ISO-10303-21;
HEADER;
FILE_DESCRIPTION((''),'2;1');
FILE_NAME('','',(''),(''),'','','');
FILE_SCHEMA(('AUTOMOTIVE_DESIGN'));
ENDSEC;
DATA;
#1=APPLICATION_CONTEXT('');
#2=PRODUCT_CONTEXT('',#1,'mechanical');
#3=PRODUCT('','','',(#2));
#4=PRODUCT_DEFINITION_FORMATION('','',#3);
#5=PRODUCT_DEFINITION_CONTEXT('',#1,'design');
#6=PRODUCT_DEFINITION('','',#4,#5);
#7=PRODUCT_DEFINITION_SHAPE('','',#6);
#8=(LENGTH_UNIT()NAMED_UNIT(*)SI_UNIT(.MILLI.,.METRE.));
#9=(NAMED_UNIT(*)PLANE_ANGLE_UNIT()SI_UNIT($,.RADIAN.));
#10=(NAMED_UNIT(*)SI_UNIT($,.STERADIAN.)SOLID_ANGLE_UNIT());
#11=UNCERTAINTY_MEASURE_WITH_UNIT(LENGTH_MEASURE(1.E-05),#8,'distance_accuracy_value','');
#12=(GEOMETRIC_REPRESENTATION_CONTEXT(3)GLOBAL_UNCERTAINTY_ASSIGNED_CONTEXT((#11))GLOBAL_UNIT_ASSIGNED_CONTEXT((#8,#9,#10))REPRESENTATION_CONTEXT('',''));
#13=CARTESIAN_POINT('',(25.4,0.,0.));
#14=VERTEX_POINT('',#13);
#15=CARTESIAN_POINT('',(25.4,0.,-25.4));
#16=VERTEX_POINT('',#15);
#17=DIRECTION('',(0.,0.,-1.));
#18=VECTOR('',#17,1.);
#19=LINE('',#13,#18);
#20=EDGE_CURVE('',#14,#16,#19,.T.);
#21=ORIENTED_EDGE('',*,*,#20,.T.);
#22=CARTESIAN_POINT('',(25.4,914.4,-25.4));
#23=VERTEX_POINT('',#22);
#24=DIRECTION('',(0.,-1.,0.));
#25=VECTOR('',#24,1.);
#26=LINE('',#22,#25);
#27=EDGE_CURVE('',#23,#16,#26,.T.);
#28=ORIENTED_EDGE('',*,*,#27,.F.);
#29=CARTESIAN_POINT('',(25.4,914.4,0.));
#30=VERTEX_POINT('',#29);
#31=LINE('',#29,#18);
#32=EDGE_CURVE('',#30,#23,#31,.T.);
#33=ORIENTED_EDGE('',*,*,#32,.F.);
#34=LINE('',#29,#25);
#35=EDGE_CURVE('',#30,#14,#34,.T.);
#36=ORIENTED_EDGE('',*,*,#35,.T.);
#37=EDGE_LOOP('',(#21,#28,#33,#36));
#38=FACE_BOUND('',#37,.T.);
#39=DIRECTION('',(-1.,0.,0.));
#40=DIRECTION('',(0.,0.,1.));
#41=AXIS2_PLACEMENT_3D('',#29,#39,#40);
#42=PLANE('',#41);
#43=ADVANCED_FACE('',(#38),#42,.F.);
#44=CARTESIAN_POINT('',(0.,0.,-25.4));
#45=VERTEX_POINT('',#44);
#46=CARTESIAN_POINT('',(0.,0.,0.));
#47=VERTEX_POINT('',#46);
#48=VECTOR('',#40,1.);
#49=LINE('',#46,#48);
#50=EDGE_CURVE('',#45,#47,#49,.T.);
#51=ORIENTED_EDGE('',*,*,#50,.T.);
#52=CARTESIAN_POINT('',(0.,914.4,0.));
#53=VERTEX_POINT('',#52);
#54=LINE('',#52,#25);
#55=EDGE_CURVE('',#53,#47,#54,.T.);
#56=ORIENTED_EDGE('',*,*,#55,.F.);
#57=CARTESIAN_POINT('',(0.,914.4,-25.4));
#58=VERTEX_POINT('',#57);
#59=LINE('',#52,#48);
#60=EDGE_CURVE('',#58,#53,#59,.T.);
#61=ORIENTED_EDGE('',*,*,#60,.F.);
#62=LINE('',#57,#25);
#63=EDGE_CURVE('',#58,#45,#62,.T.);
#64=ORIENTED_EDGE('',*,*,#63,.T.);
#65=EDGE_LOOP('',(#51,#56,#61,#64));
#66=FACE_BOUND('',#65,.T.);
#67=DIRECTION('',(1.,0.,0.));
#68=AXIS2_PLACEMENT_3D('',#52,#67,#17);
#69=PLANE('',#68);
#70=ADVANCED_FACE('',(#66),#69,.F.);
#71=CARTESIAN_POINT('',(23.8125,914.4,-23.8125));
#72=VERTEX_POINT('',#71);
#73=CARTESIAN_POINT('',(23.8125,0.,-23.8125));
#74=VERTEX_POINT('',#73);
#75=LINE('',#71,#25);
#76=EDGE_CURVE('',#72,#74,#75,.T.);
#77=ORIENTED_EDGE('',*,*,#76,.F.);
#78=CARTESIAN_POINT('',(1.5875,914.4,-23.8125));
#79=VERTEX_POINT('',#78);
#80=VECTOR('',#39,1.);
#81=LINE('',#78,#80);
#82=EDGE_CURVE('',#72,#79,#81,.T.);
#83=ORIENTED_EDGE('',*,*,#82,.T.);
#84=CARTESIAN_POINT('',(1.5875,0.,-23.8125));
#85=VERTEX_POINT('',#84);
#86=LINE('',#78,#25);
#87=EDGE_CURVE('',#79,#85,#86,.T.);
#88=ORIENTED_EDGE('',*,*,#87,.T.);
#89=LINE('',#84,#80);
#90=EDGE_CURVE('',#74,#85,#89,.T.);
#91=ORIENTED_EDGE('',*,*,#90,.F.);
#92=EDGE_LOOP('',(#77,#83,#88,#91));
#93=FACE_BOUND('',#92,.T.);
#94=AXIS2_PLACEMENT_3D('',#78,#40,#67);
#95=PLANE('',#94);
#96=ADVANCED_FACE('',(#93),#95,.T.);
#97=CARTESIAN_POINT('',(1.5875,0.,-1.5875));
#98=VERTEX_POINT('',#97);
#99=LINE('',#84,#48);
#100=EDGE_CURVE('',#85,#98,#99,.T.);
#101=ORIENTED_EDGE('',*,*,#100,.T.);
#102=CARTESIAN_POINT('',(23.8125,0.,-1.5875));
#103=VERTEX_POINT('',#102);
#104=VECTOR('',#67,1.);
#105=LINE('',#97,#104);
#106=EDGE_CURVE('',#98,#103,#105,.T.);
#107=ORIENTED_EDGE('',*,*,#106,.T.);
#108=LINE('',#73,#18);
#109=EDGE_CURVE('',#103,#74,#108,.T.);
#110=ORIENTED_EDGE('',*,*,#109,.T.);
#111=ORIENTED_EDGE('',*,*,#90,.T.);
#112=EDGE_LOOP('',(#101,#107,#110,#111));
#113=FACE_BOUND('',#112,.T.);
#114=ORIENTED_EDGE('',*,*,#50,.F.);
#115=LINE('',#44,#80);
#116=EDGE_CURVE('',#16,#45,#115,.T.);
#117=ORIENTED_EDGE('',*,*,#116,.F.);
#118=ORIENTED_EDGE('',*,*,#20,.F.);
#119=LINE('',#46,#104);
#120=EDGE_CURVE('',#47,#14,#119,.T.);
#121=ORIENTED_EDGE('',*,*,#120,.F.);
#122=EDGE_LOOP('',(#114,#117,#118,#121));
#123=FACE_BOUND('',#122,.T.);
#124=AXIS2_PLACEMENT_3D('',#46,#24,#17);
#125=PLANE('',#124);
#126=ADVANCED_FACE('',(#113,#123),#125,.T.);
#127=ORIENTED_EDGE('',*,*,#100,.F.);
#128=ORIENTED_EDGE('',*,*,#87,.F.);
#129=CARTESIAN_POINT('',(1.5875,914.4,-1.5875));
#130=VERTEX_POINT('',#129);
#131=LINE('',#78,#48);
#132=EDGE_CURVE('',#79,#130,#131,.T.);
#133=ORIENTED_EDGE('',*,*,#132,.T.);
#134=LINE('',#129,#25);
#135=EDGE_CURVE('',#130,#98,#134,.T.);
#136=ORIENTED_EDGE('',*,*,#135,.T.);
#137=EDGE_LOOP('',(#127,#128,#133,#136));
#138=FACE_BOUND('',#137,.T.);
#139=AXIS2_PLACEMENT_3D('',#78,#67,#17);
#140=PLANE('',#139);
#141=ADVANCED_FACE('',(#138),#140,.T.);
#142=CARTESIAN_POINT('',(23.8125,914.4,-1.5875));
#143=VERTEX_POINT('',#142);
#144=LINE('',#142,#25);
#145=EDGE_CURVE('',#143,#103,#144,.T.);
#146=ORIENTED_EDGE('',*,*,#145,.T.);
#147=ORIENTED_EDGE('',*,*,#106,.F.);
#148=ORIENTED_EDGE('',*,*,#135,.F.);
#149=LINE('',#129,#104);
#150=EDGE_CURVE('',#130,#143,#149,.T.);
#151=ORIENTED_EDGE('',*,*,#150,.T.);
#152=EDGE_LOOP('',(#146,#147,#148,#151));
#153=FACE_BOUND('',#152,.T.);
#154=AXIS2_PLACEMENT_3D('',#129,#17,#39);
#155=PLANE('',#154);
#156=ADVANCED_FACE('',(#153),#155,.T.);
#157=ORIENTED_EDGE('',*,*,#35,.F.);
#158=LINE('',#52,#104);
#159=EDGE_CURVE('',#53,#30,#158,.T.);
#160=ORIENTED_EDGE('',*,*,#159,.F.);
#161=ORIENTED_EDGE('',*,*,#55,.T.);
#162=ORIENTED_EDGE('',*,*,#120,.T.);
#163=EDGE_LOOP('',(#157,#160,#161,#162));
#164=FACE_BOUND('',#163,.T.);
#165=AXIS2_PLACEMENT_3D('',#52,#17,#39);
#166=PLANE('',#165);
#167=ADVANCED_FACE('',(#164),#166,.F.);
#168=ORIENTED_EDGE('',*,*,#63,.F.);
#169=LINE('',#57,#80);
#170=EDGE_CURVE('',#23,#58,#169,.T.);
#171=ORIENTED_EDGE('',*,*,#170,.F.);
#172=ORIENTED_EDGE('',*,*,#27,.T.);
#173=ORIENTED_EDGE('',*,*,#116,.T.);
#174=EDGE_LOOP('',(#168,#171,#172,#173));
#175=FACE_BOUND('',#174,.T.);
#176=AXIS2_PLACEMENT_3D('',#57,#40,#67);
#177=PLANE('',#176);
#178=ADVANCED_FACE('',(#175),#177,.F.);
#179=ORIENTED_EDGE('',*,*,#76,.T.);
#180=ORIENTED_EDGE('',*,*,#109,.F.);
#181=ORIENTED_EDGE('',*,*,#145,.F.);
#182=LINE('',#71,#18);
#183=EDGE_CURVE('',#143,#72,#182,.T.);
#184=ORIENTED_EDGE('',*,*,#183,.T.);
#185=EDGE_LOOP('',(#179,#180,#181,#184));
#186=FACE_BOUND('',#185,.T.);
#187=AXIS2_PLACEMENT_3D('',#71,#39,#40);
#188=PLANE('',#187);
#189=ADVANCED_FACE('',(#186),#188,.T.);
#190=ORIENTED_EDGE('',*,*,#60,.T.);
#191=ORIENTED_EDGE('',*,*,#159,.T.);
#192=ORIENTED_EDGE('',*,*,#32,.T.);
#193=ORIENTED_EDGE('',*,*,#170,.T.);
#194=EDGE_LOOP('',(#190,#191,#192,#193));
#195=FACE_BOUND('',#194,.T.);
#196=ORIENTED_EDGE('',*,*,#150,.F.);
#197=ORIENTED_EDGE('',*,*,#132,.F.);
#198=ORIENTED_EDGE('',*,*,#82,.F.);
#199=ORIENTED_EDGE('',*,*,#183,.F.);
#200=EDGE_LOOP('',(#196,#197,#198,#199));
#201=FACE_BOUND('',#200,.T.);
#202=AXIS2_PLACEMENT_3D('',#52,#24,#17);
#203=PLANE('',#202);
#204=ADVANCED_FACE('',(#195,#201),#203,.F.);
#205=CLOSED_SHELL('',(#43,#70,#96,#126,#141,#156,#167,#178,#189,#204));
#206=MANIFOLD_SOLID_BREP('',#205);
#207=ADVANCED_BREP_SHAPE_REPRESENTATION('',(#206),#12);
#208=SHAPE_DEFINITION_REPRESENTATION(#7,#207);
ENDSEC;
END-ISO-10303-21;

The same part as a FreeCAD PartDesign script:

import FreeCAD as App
import Part
import Sketcher
from FreeCAD import Vector
Q = App.Units.Quantity

doc = App.newDocument("Part")
body = doc.addObject("PartDesign::Body", "Body")

sketch1 = body.newObject("Sketcher::SketchObject", "Sketch")
sketch1.AttachmentSupport = (doc.getObject("XZ_Plane"), [""])
sketch1.MapMode = "FlatFace"
sketch1.addGeometry([
    Part.LineSegment(Vector(0, -25, 0), Vector(0, 0, 0)),
    Part.LineSegment(Vector(0, 0, 0), Vector(25, 0, 0)),
    Part.LineSegment(Vector(25, 0, 0), Vector(25, -25, 0)),
    Part.LineSegment(Vector(25, -25, 0), Vector(0, -25, 0)),
    Part.LineSegment(Vector(24, -2, 0), Vector(2, -2, 0)),
    Part.LineSegment(Vector(2, -2, 0), Vector(2, -24, 0)),
    Part.LineSegment(Vector(2, -24, 0), Vector(24, -24, 0)),
    Part.LineSegment(Vector(24, -24, 0), Vector(24, -2, 0)),
], False)
sketch1.addConstraint([
    Sketcher.Constraint("Coincident", 0, 2, 1, 1),
    Sketcher.Constraint("Coincident", 1, 2, 2, 1),
    Sketcher.Constraint("Coincident", 2, 2, 3, 1),
    Sketcher.Constraint("Coincident", 3, 2, 0, 1),
    Sketcher.Constraint("Coincident", 4, 2, 5, 1),
    Sketcher.Constraint("Coincident", 5, 2, 6, 1),
    Sketcher.Constraint("Coincident", 6, 2, 7, 1),
    Sketcher.Constraint("Coincident", 7, 2, 4, 1),
    Sketcher.Constraint("Vertical", 0),
    Sketcher.Constraint("Horizontal", 1),
    Sketcher.Constraint("Vertical", 2),
    Sketcher.Constraint("Horizontal", 3),
    Sketcher.Constraint("Horizontal", 4),
    Sketcher.Constraint("Vertical", 5),
    Sketcher.Constraint("Horizontal", 6),
    Sketcher.Constraint("Vertical", 7),
    Sketcher.Constraint("Coincident", 0, 2, -1, 1),
    Sketcher.Constraint("Equal", 3, 0),
    Sketcher.Constraint("Equal", 6, 5),
    Sketcher.Constraint("DistanceX", 1, 1, 1, 2, Q("1 in")),
    Sketcher.Constraint("DistanceX", 4, 2, 4, 1, Q("0.875 in")),
    Sketcher.Constraint("DistanceX", -1, 1, 4, 2, Q("0.0625 in")),
    Sketcher.Constraint("DistanceY", 4, 2, -1, 1, Q("0.0625 in")),
])
pad1 = body.newObject("PartDesign::Pad", "Pad")
pad1.Profile = sketch1
pad1.Length = Q("36 in")
pad1.Reversed = True

doc.recompute()
